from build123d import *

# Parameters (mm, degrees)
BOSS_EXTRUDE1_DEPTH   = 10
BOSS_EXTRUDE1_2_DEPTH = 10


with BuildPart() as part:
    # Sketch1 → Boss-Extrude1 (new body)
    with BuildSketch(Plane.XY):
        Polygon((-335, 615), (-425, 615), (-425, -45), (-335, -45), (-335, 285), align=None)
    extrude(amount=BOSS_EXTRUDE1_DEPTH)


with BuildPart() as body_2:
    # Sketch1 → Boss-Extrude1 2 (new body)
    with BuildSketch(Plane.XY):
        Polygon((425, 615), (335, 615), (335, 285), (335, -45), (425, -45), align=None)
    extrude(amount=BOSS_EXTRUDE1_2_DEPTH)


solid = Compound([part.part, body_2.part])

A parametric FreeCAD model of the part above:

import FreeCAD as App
import Part
import Sketcher
from FreeCAD import Vector
Q = App.Units.Quantity


def add_polygon(sketch, points):
    """Adds a closed chain of lines whose ends are joined by coincident constraints."""
    first, n = sketch.GeometryCount, len(points)
    for a, b in zip(points, points[1:] + points[:1]):
        sketch.addGeometry(Part.LineSegment(App.Vector(*a, 0), App.Vector(*b, 0)), False)
    for i in range(n):
        sketch.addConstraint(Sketcher.Constraint("Coincident", first + i, 2, first + (i + 1) % n, 1))

doc = App.newDocument("Part")
body = doc.addObject("PartDesign::Body", "Body")

sketch1 = body.newObject("Sketcher::SketchObject", "Sketch")
sketch1.AttachmentSupport = (doc.getObject("XY_Plane"), [""])
sketch1.MapMode = "FlatFace"
add_polygon(sketch1, [(-335, 615), (-425, 615), (-425, -45), (-335, -45)])
sketch1.addConstraint(Sketcher.Constraint("Horizontal", 0))
sketch1.addConstraint(Sketcher.Constraint("Vertical", 1))
sketch1.addConstraint(Sketcher.Constraint("Horizontal", 2))
sketch1.addConstraint(Sketcher.Constraint("Vertical", 3))
sketch1.addConstraint(Sketcher.Constraint("DistanceX", 0, 2, 0, 1, Q("90 mm")))
sketch1.addConstraint(Sketcher.Constraint("DistanceY", 1, 2, 1, 1, Q("660 mm")))
sketch1.addConstraint(Sketcher.Constraint("DistanceX", 0, 2, -1, 1, Q("425 mm")))
sketch1.addConstraint(Sketcher.Constraint("DistanceY", -1, 1, 0, 2, Q("615 mm")))
pad1 = body.newObject("PartDesign::Pad", "Pad")
pad1.Profile = sketch1
pad1.Length = 10
body2 = doc.addObject("PartDesign::Body", "Body001")

sketch2 = body2.newObject("Sketcher::SketchObject", "Sketch001")
sketch2.AttachmentSupport = (doc.getObject("XY_Plane001"), [""])
sketch2.MapMode = "FlatFace"
add_polygon(sketch2, [(425, 615), (335, 615), (335, -45), (425, -45)])
sketch2.addConstraint(Sketcher.Constraint("Horizontal", 0))
sketch2.addConstraint(Sketcher.Constraint("Vertical", 1))
sketch2.addConstraint(Sketcher.Constraint("Horizontal", 2))
sketch2.addConstraint(Sketcher.Constraint("Vertical", 3))
sketch2.addConstraint(Sketcher.Constraint("DistanceX", 0, 2, 0, 1, Q("90 mm")))
sketch2.addConstraint(Sketcher.Constraint("DistanceY", 1, 2, 1, 1, Q("660 mm")))
sketch2.addConstraint(Sketcher.Constraint("DistanceX", -1, 1, 0, 2, Q("335 mm")))
sketch2.addConstraint(Sketcher.Constraint("DistanceY", -1, 1, 0, 2, Q("615 mm")))
pad2 = body2.newObject("PartDesign::Pad", "Pad001")
pad2.Profile = sketch2
pad2.Length = 10

doc.recompute()
